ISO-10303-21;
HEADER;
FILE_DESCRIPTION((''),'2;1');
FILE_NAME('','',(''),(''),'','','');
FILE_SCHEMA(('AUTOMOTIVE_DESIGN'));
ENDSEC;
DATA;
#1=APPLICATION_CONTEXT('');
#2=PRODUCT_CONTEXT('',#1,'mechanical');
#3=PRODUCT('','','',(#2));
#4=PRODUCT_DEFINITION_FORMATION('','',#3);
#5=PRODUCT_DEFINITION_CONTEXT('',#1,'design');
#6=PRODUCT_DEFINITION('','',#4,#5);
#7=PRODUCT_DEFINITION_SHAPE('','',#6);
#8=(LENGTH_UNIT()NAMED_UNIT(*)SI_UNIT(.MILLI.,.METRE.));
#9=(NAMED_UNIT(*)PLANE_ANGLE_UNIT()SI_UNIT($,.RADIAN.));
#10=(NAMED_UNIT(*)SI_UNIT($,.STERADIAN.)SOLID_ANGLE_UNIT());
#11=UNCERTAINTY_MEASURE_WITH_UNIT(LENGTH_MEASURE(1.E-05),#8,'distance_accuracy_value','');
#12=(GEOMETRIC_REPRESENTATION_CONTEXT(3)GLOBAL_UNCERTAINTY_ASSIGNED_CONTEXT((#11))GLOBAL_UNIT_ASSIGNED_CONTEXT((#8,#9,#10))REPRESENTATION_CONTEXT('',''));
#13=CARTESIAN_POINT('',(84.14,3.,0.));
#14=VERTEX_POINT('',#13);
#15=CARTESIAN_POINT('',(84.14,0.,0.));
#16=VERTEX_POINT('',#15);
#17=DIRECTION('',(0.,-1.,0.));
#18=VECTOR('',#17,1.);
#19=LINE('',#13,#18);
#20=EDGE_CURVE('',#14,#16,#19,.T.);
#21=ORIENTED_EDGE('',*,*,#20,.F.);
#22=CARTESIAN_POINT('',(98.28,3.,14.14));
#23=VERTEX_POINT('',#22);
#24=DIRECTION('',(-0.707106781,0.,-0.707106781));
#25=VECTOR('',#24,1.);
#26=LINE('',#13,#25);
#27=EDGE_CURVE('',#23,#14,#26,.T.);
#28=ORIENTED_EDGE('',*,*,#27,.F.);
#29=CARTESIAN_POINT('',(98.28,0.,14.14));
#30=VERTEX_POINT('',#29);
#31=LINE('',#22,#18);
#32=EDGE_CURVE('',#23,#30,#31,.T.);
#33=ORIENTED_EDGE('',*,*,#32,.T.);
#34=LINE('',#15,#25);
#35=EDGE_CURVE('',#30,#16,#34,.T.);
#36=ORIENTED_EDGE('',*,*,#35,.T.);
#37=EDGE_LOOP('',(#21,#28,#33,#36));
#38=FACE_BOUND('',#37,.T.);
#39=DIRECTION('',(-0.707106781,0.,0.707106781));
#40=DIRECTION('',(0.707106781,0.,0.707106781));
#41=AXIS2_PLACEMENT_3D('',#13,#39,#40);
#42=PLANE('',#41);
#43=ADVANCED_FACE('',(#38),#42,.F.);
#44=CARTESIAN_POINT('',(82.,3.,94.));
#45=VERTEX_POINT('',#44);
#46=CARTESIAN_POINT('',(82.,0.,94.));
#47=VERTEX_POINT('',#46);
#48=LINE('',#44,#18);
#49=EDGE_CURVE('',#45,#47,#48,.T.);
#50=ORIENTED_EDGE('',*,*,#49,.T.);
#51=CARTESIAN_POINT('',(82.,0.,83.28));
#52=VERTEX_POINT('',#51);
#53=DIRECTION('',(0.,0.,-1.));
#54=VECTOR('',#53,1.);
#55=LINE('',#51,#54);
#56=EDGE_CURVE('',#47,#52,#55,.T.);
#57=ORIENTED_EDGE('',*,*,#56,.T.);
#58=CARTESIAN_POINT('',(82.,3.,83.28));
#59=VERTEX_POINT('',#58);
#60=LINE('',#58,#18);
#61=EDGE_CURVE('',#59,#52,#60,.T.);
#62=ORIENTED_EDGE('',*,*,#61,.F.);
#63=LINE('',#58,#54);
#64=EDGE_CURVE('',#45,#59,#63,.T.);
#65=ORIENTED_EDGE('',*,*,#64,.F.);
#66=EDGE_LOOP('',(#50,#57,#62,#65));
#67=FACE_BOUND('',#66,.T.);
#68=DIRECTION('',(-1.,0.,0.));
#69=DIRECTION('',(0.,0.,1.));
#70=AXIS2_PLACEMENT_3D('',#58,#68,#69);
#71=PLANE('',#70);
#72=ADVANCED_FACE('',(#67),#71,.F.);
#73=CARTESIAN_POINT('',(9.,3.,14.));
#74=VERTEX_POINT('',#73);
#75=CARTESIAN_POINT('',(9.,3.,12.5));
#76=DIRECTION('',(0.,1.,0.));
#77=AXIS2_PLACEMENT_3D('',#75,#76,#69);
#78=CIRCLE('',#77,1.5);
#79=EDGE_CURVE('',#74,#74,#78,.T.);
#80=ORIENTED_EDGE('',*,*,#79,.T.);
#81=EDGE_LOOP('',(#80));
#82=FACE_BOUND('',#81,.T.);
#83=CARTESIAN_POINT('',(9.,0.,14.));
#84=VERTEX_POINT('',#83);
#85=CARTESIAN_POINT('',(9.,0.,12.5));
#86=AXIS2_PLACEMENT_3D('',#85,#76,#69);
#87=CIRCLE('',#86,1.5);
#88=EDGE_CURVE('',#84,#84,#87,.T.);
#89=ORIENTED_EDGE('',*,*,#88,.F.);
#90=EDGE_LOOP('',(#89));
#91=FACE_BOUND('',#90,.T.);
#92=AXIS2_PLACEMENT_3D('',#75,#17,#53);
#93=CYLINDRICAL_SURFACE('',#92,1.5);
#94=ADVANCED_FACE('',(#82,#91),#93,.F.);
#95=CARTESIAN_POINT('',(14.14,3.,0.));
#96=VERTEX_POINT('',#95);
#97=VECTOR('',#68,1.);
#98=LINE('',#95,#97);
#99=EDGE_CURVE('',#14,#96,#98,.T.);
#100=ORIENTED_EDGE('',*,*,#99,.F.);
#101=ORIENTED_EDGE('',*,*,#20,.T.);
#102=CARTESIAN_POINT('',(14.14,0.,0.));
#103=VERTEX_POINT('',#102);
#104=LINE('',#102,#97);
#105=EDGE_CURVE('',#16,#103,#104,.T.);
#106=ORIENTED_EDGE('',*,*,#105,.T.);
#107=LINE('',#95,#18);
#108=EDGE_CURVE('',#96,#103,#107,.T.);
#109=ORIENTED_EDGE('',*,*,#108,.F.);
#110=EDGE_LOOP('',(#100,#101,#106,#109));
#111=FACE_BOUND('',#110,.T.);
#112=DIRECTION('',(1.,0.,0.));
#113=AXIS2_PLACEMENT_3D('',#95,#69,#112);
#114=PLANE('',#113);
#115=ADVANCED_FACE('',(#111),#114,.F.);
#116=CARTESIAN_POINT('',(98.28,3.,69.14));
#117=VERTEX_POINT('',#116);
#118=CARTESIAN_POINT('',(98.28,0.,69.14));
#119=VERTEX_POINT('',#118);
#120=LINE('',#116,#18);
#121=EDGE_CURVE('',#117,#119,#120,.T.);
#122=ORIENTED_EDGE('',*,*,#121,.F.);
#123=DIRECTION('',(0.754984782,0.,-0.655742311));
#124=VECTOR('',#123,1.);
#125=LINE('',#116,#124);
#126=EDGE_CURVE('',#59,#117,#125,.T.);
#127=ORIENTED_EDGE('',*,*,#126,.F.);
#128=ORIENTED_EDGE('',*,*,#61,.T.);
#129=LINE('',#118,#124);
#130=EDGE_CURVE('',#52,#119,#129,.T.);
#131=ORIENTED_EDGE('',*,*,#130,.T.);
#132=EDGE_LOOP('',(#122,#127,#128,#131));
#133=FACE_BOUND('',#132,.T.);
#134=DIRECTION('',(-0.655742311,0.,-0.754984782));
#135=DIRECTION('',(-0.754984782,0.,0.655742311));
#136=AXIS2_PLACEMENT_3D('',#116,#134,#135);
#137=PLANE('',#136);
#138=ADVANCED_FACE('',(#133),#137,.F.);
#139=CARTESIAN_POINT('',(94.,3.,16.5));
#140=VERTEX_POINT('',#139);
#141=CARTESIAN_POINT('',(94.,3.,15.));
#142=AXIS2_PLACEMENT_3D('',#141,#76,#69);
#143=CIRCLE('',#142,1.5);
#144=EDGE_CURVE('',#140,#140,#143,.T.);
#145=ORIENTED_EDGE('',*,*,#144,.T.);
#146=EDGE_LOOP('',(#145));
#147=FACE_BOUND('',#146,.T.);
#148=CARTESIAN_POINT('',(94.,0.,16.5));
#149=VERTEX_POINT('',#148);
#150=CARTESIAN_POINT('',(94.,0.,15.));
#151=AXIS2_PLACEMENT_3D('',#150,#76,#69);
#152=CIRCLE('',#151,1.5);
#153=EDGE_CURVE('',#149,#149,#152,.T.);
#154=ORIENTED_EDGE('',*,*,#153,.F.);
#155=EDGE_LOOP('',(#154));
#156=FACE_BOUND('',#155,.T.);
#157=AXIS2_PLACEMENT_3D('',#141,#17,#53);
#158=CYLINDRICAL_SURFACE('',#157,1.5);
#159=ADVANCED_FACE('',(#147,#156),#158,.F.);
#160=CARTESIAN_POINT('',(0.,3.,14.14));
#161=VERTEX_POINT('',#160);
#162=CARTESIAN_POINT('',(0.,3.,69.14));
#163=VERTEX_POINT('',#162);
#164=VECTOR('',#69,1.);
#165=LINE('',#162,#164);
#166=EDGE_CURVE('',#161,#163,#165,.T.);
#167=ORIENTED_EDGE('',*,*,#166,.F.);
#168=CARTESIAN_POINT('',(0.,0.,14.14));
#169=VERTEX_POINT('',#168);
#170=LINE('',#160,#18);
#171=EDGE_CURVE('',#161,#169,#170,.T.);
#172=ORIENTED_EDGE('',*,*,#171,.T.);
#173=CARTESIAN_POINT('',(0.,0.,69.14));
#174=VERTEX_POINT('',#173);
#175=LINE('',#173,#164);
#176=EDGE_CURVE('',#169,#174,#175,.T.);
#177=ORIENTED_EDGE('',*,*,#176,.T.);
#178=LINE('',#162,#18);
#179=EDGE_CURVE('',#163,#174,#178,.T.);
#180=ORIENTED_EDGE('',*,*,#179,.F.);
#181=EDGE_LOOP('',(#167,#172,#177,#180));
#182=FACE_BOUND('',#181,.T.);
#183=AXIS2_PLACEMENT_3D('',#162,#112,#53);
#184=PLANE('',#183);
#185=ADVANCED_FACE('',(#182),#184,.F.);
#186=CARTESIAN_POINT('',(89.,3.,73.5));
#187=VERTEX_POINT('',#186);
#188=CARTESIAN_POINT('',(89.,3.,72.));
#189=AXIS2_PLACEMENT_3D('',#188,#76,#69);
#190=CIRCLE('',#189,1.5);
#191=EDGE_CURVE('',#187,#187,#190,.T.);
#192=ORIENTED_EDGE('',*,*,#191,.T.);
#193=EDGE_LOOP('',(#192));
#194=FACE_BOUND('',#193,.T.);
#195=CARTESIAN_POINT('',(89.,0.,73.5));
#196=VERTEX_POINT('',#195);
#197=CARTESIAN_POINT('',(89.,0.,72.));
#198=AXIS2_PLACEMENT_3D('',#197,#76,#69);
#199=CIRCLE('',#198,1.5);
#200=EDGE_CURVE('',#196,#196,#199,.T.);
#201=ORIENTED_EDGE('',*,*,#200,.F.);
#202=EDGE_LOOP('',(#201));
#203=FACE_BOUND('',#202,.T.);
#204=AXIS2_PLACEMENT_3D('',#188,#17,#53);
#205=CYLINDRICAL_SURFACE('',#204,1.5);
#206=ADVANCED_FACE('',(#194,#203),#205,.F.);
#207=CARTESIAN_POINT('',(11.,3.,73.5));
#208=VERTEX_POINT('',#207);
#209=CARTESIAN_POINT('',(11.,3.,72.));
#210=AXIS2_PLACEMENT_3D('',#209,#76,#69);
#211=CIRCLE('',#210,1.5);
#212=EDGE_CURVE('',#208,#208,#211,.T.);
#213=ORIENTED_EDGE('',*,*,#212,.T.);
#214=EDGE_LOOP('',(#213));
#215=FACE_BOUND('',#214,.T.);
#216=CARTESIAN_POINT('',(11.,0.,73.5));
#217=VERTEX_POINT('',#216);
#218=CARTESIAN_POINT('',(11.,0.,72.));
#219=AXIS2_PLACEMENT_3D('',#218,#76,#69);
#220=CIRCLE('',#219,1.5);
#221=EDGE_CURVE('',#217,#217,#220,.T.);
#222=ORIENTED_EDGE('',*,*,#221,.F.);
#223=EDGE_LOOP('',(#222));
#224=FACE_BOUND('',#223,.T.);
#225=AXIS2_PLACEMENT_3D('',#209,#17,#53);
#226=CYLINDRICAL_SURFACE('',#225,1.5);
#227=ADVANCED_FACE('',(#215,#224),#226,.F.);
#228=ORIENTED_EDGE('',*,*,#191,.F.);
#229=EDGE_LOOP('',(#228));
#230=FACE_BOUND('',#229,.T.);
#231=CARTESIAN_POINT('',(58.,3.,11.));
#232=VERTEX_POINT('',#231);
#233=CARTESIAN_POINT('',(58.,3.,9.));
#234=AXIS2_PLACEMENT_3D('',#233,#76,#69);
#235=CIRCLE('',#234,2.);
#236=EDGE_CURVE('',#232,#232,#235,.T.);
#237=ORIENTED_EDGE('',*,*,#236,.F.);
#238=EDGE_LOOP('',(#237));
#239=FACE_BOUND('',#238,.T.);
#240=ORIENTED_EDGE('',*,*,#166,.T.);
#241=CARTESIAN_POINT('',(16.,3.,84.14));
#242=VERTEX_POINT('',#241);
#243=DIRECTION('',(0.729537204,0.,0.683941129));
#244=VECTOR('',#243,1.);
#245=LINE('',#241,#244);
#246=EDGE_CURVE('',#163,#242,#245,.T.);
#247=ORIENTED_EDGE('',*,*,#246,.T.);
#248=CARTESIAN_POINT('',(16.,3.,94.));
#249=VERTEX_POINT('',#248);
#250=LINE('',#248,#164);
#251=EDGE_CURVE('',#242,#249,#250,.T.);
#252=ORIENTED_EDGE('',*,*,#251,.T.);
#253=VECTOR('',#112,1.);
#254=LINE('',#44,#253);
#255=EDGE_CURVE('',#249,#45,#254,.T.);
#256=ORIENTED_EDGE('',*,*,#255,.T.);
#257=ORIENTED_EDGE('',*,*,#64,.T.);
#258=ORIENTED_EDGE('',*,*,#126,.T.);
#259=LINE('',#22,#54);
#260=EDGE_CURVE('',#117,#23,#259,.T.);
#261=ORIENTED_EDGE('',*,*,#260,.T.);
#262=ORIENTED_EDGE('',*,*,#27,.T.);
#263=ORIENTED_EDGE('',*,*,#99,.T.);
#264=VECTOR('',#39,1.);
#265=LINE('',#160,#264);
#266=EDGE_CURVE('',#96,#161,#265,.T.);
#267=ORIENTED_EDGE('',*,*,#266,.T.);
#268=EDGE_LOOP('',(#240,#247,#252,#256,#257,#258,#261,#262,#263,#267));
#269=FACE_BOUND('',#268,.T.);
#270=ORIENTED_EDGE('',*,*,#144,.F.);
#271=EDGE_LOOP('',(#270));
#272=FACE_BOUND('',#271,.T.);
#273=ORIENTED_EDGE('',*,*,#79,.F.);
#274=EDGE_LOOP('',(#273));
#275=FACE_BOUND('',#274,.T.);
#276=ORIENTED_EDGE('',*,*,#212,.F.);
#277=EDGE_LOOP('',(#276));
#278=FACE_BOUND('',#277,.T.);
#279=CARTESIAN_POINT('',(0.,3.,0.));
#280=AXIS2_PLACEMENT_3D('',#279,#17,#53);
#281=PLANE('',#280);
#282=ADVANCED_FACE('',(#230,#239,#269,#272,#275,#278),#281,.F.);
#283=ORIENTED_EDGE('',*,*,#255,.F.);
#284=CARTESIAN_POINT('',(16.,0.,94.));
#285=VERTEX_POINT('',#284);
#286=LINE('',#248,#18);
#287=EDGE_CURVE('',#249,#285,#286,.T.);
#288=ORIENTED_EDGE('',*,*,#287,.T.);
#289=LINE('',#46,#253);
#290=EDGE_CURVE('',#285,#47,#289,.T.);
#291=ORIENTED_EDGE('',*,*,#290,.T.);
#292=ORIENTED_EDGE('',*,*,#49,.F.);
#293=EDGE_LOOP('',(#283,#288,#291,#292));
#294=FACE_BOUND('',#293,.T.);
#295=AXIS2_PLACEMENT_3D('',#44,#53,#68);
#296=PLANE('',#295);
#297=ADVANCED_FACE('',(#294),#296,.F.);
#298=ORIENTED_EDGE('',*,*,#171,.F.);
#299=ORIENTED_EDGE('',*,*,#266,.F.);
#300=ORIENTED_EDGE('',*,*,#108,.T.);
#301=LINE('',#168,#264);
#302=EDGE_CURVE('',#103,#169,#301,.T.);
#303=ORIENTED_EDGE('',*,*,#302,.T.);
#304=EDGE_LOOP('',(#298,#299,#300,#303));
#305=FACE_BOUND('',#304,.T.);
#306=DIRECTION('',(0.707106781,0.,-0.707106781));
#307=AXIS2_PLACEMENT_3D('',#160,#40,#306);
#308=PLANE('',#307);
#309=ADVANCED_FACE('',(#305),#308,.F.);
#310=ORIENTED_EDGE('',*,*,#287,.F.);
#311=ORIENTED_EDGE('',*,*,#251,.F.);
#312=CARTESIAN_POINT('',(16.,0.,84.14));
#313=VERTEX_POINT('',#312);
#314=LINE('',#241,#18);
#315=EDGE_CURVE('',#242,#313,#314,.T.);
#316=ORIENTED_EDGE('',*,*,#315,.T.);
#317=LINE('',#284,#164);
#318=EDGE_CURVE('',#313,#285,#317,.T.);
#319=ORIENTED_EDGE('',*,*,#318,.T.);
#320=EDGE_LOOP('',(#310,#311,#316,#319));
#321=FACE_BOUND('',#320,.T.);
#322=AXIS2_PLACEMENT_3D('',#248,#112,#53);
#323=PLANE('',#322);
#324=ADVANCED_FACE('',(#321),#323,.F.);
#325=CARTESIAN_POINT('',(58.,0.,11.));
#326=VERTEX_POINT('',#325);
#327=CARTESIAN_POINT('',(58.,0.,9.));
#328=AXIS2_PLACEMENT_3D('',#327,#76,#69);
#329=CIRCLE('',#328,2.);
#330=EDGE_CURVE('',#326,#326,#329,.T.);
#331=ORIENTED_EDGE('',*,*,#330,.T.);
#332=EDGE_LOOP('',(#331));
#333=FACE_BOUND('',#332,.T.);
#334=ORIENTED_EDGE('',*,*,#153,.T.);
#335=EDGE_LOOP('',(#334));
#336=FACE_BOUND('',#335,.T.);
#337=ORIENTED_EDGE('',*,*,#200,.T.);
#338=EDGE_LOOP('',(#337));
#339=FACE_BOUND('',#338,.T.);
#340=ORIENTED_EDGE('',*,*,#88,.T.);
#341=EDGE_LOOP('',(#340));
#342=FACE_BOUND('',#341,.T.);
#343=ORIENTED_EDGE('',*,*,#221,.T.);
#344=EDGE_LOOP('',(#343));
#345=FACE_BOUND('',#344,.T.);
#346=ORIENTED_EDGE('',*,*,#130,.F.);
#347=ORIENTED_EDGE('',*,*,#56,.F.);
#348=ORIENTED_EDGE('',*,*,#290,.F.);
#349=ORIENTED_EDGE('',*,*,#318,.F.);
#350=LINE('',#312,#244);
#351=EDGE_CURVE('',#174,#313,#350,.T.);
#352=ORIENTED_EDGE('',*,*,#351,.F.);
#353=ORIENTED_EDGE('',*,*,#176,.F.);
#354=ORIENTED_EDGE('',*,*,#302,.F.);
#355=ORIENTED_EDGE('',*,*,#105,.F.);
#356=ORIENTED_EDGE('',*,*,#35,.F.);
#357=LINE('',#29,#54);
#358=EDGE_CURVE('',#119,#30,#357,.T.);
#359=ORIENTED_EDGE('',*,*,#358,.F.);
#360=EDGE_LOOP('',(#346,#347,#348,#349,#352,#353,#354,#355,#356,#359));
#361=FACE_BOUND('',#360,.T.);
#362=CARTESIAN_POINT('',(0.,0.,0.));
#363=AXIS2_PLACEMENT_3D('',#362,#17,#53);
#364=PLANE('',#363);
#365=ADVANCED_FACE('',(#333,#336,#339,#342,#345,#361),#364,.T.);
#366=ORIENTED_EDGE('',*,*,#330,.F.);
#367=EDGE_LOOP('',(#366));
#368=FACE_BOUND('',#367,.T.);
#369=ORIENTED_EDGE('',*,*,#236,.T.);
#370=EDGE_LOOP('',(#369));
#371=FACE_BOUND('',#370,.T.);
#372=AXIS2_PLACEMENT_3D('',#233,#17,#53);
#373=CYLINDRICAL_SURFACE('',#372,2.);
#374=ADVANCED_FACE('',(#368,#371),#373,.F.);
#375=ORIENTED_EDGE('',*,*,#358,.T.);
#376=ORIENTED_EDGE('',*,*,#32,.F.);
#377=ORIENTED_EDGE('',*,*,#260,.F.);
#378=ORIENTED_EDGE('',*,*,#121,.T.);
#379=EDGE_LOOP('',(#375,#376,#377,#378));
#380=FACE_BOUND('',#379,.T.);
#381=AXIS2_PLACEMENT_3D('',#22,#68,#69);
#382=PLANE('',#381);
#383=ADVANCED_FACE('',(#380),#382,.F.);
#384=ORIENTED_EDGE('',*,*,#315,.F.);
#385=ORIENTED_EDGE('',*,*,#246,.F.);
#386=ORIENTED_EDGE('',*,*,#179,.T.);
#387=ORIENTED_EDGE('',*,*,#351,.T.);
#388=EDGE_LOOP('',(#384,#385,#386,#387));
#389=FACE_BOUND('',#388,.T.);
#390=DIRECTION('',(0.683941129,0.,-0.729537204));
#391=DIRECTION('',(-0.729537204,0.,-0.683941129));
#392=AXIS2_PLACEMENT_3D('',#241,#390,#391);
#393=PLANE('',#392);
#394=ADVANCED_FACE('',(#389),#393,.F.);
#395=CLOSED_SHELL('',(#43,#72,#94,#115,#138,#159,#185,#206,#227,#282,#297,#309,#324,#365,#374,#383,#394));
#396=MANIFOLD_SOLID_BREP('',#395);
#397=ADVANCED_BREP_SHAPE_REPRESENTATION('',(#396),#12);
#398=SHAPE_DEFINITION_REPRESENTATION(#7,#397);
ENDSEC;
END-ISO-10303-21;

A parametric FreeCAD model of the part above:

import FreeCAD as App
import Part
import Sketcher
from FreeCAD import Vector

doc = App.newDocument("Part")
body = doc.addObject("PartDesign::Body", "Body")

# Sketch on XZ plane
sketch1 = body.newObject("Sketcher::SketchObject", "Sketch")
sketch1.AttachmentSupport = (doc.getObject("XZ_Plane"), [""])
sketch1.MapMode = "FlatFace"
sketch1.addGeometry([
    Part.LineSegment(Vector(84.1, 0, 0), Vector(14.1, 0, 0)),  # 0
    Part.LineSegment(Vector(14.1, 0, 0), Vector(0, 14.1, 0)),  # 1
    Part.LineSegment(Vector(0, 14.1, 0), Vector(0, 69.1, 0)),  # 2
    Part.LineSegment(Vector(0, 69.1, 0), Vector(16, 84.1, 0)),  # 3
    Part.LineSegment(Vector(16, 84.1, 0), Vector(16, 94, 0)),  # 4
    Part.LineSegment(Vector(16, 94, 0), Vector(82, 94, 0)),  # 5
    Part.LineSegment(Vector(82, 94, 0), Vector(82, 83.3, 0)),  # 6
    Part.LineSegment(Vector(82, 83.3, 0), Vector(98.3, 69.1, 0)),  # 7
    Part.LineSegment(Vector(98.3, 69.1, 0), Vector(98.3, 14.1, 0)),  # 8
    Part.LineSegment(Vector(98.3, 14.1, 0), Vector(84.1, 0, 0)),  # 9
    Part.Circle(Vector(89, 72, 0), Vector(0, 0, 1), 1.5),  # 10
    Part.Circle(Vector(11, 72, 0), Vector(0, 0, 1), 1.5),  # 11
    Part.Circle(Vector(94, 15, 0), Vector(0, 0, 1), 1.5),  # 12
    Part.Circle(Vector(58, 9, 0), Vector(0, 0, 1), 2),  # 13
    Part.Circle(Vector(9, 12.5, 0), Vector(0, 0, 1), 1.5),  # 14
], False)
sketch1.addConstraint([
    Sketcher.Constraint("Coincident", 0, 2, 1, 1),
    Sketcher.Constraint("Coincident", 1, 2, 2, 1),
    Sketcher.Constraint("Coincident", 2, 2, 3, 1),
    Sketcher.Constraint("Coincident", 3, 2, 4, 1),
    Sketcher.Constraint("Coincident", 4, 2, 5, 1),
    Sketcher.Constraint("Coincident", 5, 2, 6, 1),
    Sketcher.Constraint("Coincident", 6, 2, 7, 1),
    Sketcher.Constraint("Coincident", 7, 2, 8, 1),
    Sketcher.Constraint("Coincident", 8, 2, 9, 1),
    Sketcher.Constraint("Coincident", 9, 2, 0, 1),
    Sketcher.Constraint("Horizontal", 0),
    Sketcher.Constraint("Vertical", 2),
    Sketcher.Constraint("Vertical", 4),
    Sketcher.Constraint("Horizontal", 5),
    Sketcher.Constraint("Vertical", 6),
    Sketcher.Constraint("Vertical", 8),
    Sketcher.Constraint("Equal", 10, 11),
    Sketcher.Constraint("Equal", 11, 12),
    Sketcher.Constraint("Equal", 12, 14),
    Sketcher.Constraint("PointOnObject", 0, 2, -1),
    Sketcher.Constraint("PointOnObject", 1, 2, -2),
    Sketcher.Constraint("Perpendicular", 1, 9),
    Sketcher.Constraint("Horizontal", 10, 3, 11, 3),
    Sketcher.Constraint("Horizontal", 2, 2, 7, 2),
    Sketcher.Constraint("Horizontal", 1, 2, 8, 2),
    Sketcher.Constraint("Equal", 1, 9),
    Sketcher.Constraint("Diameter", 10, 3.0),
    Sketcher.Constraint("Diameter", 13, 4.0),
    Sketcher.Constraint("DistanceX", 0, 2, 0, 1, 70.0),
    Sketcher.Constraint("DistanceX", 5, 1, 5, 2, 66.0),
    Sketcher.Constraint("DistanceY", 2, 1, 2, 2, 55.0),
    Sketcher.Constraint("DistanceX", -1, 1, 10, 3, 89.0),
    Sketcher.Constraint("DistanceY", -1, 1, 10, 3, 72.0),
    Sketcher.Constraint("DistanceX", -1, 1, 11, 3, 11.0),
    Sketcher.Constraint("DistanceX", -1, 1, 12, 3, 94.0),
    Sketcher.Constraint("DistanceY", -1, 1, 12, 3, 15.0),
    Sketcher.Constraint("DistanceX", -1, 1, 13, 3, 58.0),
    Sketcher.Constraint("DistanceY", -1, 1, 13, 3, 9.0),
    Sketcher.Constraint("DistanceX", -1, 1, 14, 3, 9.0),
    Sketcher.Constraint("DistanceX", -1, 1, 3, 2, 16.0),
    Sketcher.Constraint("DistanceY", -1, 1, 4, 2, 94.0),
    Sketcher.Constraint("DistanceY", 2, 2, 3, 2, 15.0),
    Sketcher.Constraint("DistanceY", 4, 1, 4, 2, 9.86),
    Sketcher.Constraint("DistanceY", 6, 2, 6, 1, 10.72),
    Sketcher.Constraint("DistanceY", -1, 1, 14, 3, 12.5),
])
pad1 = body.newObject("PartDesign::Pad", "Pad")
pad1.Profile = sketch1
pad1.Length = 3
pad1.Reversed = True

doc.recompute()
